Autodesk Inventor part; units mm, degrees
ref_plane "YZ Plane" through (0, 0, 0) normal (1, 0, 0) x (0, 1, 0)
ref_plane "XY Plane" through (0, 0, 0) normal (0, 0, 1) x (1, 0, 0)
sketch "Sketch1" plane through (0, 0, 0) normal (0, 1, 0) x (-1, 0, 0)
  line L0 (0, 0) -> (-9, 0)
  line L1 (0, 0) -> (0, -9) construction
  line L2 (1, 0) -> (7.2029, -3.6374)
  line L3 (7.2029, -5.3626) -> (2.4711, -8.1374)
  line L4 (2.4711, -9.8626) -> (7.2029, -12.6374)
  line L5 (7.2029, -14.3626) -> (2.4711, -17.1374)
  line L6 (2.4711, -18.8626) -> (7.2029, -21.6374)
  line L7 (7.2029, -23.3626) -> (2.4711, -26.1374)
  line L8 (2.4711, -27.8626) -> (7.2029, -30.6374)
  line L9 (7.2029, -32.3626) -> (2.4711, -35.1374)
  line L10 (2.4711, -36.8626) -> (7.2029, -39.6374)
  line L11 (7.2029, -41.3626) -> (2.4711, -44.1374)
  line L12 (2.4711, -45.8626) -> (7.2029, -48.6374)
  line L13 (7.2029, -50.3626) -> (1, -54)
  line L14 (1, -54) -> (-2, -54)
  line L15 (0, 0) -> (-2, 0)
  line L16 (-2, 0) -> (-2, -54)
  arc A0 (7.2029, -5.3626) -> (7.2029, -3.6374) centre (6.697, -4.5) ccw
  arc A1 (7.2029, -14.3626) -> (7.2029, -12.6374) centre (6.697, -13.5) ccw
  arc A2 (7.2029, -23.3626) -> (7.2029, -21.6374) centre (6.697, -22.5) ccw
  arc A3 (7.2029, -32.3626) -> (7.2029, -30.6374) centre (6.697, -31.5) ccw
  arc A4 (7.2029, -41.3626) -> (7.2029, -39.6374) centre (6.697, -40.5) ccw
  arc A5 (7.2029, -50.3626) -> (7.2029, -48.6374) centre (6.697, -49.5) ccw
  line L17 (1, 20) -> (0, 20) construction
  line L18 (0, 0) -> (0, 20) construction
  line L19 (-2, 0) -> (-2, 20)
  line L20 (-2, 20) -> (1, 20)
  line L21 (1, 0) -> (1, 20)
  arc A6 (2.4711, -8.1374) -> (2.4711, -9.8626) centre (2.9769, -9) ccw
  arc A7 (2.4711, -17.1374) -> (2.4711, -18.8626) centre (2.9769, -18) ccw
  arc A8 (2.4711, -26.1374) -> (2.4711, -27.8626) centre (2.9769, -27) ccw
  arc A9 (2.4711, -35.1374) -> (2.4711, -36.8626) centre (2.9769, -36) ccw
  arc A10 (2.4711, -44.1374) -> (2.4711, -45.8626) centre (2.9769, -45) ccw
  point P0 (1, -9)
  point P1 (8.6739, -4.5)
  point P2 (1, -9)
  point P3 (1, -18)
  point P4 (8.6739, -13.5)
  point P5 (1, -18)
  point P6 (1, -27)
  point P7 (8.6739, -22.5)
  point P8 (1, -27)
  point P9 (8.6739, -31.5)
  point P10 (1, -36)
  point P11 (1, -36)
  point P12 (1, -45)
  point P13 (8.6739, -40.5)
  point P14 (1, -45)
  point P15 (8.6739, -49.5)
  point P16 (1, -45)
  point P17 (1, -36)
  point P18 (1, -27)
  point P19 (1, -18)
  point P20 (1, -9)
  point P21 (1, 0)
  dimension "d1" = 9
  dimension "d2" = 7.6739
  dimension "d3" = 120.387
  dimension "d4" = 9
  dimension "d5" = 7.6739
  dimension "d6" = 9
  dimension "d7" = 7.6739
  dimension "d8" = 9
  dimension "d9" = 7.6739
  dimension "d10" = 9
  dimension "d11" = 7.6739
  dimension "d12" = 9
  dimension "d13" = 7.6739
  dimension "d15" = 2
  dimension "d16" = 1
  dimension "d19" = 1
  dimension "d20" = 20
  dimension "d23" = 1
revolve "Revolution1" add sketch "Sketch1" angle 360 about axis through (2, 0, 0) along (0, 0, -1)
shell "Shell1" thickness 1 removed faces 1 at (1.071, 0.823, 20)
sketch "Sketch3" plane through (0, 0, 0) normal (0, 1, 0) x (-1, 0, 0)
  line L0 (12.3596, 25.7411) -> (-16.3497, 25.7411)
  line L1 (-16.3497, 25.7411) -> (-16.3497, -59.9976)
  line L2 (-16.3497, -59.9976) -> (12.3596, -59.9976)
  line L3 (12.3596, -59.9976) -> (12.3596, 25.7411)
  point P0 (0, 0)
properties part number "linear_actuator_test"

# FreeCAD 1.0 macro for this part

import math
import FreeCAD as App
import Part
import Sketcher


def faces_at(feature, points):
    """Names of the faces that lie closest to the given points."""
    faces = feature.Shape.Faces
    near = lambda p: min(range(len(faces)), key=lambda i: faces[i].distToShape(Part.Vertex(*p))[0])
    return sorted({f"Face{near(p) + 1}" for p in points})

doc = App.newDocument("Part")
body = doc.addObject("PartDesign::Body", "Body")

sketch1 = body.newObject("Sketcher::SketchObject", "Sketch")
sketch1.AttachmentSupport = (doc.getObject("XZ_Plane"), [""])
sketch1.MapMode = "FlatFace"
sketch1.addGeometry([
    Part.LineSegment(App.Vector(-7.2, -3.6, 0), App.Vector(-1, 0, 0)),
    Part.LineSegment(App.Vector(-1, 0, 0), App.Vector(-1, 20, 0)),
    Part.LineSegment(App.Vector(-1, 20, 0), App.Vector(2, 20, 0)),
    Part.LineSegment(App.Vector(2, 20, 0), App.Vector(2, -54, 0)),
    Part.LineSegment(App.Vector(2, -54, 0), App.Vector(-1, -54, 0)),
    Part.LineSegment(App.Vector(-1, -54, 0), App.Vector(-7.2, -50.4, 0)),
    Part.ArcOfCircle(Part.Circle(App.Vector(-6.7, -49.5, 0), App.Vector(0, 0, 1), 1), math.radians(120), math.radians(240)),
    Part.LineSegment(App.Vector(-7.2, -48.6, 0), App.Vector(-2.5, -45.9, 0)),
    Part.ArcOfCircle(Part.Circle(App.Vector(-3, -45, 0), App.Vector(0, 0, 1), 1), math.radians(-60), math.radians(60)),
    Part.LineSegment(App.Vector(-2.5, -44.1, 0), App.Vector(-7.2, -41.4, 0)),
    Part.ArcOfCircle(Part.Circle(App.Vector(-6.7, -40.5, 0), App.Vector(0, 0, 1), 1), math.radians(120), math.radians(240)),
    Part.LineSegment(App.Vector(-7.2, -39.6, 0), App.Vector(-2.5, -36.9, 0)),
    Part.ArcOfCircle(Part.Circle(App.Vector(-3, -36, 0), App.Vector(0, 0, 1), 1), math.radians(-60), math.radians(60)),
    Part.LineSegment(App.Vector(-2.5, -35.1, 0), App.Vector(-7.2, -32.4, 0)),
    Part.ArcOfCircle(Part.Circle(App.Vector(-6.7, -31.5, 0), App.Vector(0, 0, 1), 1), math.radians(120), math.radians(240)),
    Part.LineSegment(App.Vector(-7.2, -30.6, 0), App.Vector(-2.5, -27.9, 0)),
    Part.ArcOfCircle(Part.Circle(App.Vector(-3, -27, 0), App.Vector(0, 0, 1), 1), math.radians(-60), math.radians(60)),
    Part.LineSegment(App.Vector(-2.5, -26.1, 0), App.Vector(-7.2, -23.4, 0)),
    Part.ArcOfCircle(Part.Circle(App.Vector(-6.7, -22.5, 0), App.Vector(0, 0, 1), 1), math.radians(120), math.radians(240)),
    Part.LineSegment(App.Vector(-7.2, -21.6, 0), App.Vector(-2.5, -18.9, 0)),
    Part.ArcOfCircle(Part.Circle(App.Vector(-3, -18, 0), App.Vector(0, 0, 1), 1), math.radians(-60), math.radians(60)),
    Part.LineSegment(App.Vector(-2.5, -17.1, 0), App.Vector(-7.2, -14.4, 0)),
    Part.ArcOfCircle(Part.Circle(App.Vector(-6.7, -13.5, 0), App.Vector(0, 0, 1), 1), math.radians(120), math.radians(240)),
    Part.LineSegment(App.Vector(-7.2, -12.6, 0), App.Vector(-2.5, -9.9, 0)),
    Part.ArcOfCircle(Part.Circle(App.Vector(-3, -9, 0), App.Vector(0, 0, 1), 1), math.radians(-60), math.radians(60)),
    Part.LineSegment(App.Vector(-2.5, -8.1, 0), App.Vector(-7.2, -5.4, 0)),
    Part.ArcOfCircle(Part.Circle(App.Vector(-6.7, -4.5, 0), App.Vector(0, 0, 1), 1), math.radians(120), math.radians(240)),
], False)
sketch1.addGeometry(Part.LineSegment(App.Vector(2, 20, 0), App.Vector(2, -54, 0)), True)
sketch1.addConstraint([
    Sketcher.Constraint("Coincident", 0, 2, 1, 1),
    Sketcher.Constraint("Coincident", 1, 2, 2, 1),
    Sketcher.Constraint("Coincident", 2, 2, 3, 1),
    Sketcher.Constraint("Coincident", 3, 2, 4, 1),
    Sketcher.Constraint("Coincident", 4, 2, 5, 1),
    Sketcher.Constraint("Tangent", 5, 2, 6, 2),
    Sketcher.Constraint("Tangent", 6, 1, 7, 1),
    Sketcher.Constraint("Tangent", 7, 2, 8, 1),
    Sketcher.Constraint("Tangent", 8, 2, 9, 1),
    Sketcher.Constraint("Tangent", 9, 2, 10, 2),
    Sketcher.Constraint("Tangent", 10, 1, 11, 1),
    Sketcher.Constraint("Tangent", 11, 2, 12, 1),
    Sketcher.Constraint("Tangent", 12, 2, 13, 1),
    Sketcher.Constraint("Tangent", 13, 2, 14, 2),
    Sketcher.Constraint("Tangent", 14, 1, 15, 1),
    Sketcher.Constraint("Tangent", 15, 2, 16, 1),
    Sketcher.Constraint("Tangent", 16, 2, 17, 1),
    Sketcher.Constraint("Tangent", 17, 2, 18, 2),
    Sketcher.Constraint("Tangent", 18, 1, 19, 1),
    Sketcher.Constraint("Tangent", 19, 2, 20, 1),
    Sketcher.Constraint("Tangent", 20, 2, 21, 1),
    Sketcher.Constraint("Tangent", 21, 2, 22, 2),
    Sketcher.Constraint("Tangent", 22, 1, 23, 1),
    Sketcher.Constraint("Tangent", 23, 2, 24, 1),
    Sketcher.Constraint("Tangent", 24, 2, 25, 1),
    Sketcher.Constraint("Tangent", 25, 2, 26, 2),
    Sketcher.Constraint("Tangent", 26, 1, 0, 1),
    Sketcher.Constraint("Vertical", 1),
    Sketcher.Constraint("Horizontal", 2),
    Sketcher.Constraint("Vertical", 3),
    Sketcher.Constraint("Horizontal", 4),
    Sketcher.Constraint("Vertical", 27),
    Sketcher.Constraint("Coincident", 27, 1, 2, 2),
    Sketcher.Constraint("Equal", 6, 8),
    Sketcher.Constraint("Equal", 8, 10),
    Sketcher.Constraint("Equal", 10, 12),
    Sketcher.Constraint("Equal", 12, 14),
    Sketcher.Constraint("Equal", 14, 16),
    Sketcher.Constraint("Equal", 16, 18),
    Sketcher.Constraint("Equal", 18, 20),
    Sketcher.Constraint("Equal", 20, 22),
    Sketcher.Constraint("Equal", 22, 24),
    Sketcher.Constraint("Equal", 24, 26),
    Sketcher.Constraint("PointOnObject", 0, 2, -1),
    Sketcher.Constraint("Parallel", 0, 7),
    Sketcher.Constraint("Parallel", 5, 9),
    Sketcher.Constraint("Parallel", 7, 11),
    Sketcher.Constraint("Parallel", 9, 13),
    Sketcher.Constraint("Parallel", 11, 15),
    Sketcher.Constraint("Parallel", 13, 17),
    Sketcher.Constraint("Parallel", 15, 19),
    Sketcher.Constraint("Parallel", 17, 21),
    Sketcher.Constraint("Parallel", 19, 23),
    Sketcher.Constraint("Parallel", 21, 25),
    Sketcher.Constraint("Horizontal", 4, 2, 27, 2),
    Sketcher.Constraint("Vertical", 6, 3, 10, 3),
    Sketcher.Constraint("Vertical", 8, 3, 12, 3),
    Sketcher.Constraint("Vertical", 10, 3, 14, 3),
    Sketcher.Constraint("Vertical", 12, 3, 16, 3),
    Sketcher.Constraint("Vertical", 14, 3, 18, 3),
    Sketcher.Constraint("Vertical", 16, 3, 20, 3),
    Sketcher.Constraint("Vertical", 18, 3, 22, 3),
    Sketcher.Constraint("Vertical", 20, 3, 24, 3),
    Sketcher.Constraint("Vertical", 22, 3, 26, 3),
    Sketcher.Constraint("Vertical", 1, 2, 4, 2),
    Sketcher.Constraint("Vertical", 5, 2, 6, 1),
    Sketcher.Constraint("Radius", 6, 1.0),
    Sketcher.Constraint("DistanceY", 1, 1, 1, 2, 20.0),
    Sketcher.Constraint("DistanceY", 24, 3, -1, 1, 9.0),
    Sketcher.Constraint("DistanceX", 0, 2, -1, 1, 1.0),
    Sketcher.Constraint("DistanceX", -1, 1, 2, 2, 2.0),
    Sketcher.Constraint("DistanceY", 6, 3, 10, 3, 9.0),
    Sketcher.Constraint("DistanceX", 6, 3, 8, 3, 3.72),
])
revolution = body.newObject("PartDesign::Revolution", "Revolution")
revolution.Profile = sketch1
revolution.ReferenceAxis = (sketch1, ["Axis0"])
revolution.Angle = 360
doc.recompute()

thickness = body.newObject("PartDesign::Thickness", "Thickness")
thickness.Base = (revolution, faces_at(revolution, [(1.071, 0.823, 20)]))
thickness.Value = 1
thickness.Reversed = True
thickness.Join = "Intersection"

doc.recompute()
